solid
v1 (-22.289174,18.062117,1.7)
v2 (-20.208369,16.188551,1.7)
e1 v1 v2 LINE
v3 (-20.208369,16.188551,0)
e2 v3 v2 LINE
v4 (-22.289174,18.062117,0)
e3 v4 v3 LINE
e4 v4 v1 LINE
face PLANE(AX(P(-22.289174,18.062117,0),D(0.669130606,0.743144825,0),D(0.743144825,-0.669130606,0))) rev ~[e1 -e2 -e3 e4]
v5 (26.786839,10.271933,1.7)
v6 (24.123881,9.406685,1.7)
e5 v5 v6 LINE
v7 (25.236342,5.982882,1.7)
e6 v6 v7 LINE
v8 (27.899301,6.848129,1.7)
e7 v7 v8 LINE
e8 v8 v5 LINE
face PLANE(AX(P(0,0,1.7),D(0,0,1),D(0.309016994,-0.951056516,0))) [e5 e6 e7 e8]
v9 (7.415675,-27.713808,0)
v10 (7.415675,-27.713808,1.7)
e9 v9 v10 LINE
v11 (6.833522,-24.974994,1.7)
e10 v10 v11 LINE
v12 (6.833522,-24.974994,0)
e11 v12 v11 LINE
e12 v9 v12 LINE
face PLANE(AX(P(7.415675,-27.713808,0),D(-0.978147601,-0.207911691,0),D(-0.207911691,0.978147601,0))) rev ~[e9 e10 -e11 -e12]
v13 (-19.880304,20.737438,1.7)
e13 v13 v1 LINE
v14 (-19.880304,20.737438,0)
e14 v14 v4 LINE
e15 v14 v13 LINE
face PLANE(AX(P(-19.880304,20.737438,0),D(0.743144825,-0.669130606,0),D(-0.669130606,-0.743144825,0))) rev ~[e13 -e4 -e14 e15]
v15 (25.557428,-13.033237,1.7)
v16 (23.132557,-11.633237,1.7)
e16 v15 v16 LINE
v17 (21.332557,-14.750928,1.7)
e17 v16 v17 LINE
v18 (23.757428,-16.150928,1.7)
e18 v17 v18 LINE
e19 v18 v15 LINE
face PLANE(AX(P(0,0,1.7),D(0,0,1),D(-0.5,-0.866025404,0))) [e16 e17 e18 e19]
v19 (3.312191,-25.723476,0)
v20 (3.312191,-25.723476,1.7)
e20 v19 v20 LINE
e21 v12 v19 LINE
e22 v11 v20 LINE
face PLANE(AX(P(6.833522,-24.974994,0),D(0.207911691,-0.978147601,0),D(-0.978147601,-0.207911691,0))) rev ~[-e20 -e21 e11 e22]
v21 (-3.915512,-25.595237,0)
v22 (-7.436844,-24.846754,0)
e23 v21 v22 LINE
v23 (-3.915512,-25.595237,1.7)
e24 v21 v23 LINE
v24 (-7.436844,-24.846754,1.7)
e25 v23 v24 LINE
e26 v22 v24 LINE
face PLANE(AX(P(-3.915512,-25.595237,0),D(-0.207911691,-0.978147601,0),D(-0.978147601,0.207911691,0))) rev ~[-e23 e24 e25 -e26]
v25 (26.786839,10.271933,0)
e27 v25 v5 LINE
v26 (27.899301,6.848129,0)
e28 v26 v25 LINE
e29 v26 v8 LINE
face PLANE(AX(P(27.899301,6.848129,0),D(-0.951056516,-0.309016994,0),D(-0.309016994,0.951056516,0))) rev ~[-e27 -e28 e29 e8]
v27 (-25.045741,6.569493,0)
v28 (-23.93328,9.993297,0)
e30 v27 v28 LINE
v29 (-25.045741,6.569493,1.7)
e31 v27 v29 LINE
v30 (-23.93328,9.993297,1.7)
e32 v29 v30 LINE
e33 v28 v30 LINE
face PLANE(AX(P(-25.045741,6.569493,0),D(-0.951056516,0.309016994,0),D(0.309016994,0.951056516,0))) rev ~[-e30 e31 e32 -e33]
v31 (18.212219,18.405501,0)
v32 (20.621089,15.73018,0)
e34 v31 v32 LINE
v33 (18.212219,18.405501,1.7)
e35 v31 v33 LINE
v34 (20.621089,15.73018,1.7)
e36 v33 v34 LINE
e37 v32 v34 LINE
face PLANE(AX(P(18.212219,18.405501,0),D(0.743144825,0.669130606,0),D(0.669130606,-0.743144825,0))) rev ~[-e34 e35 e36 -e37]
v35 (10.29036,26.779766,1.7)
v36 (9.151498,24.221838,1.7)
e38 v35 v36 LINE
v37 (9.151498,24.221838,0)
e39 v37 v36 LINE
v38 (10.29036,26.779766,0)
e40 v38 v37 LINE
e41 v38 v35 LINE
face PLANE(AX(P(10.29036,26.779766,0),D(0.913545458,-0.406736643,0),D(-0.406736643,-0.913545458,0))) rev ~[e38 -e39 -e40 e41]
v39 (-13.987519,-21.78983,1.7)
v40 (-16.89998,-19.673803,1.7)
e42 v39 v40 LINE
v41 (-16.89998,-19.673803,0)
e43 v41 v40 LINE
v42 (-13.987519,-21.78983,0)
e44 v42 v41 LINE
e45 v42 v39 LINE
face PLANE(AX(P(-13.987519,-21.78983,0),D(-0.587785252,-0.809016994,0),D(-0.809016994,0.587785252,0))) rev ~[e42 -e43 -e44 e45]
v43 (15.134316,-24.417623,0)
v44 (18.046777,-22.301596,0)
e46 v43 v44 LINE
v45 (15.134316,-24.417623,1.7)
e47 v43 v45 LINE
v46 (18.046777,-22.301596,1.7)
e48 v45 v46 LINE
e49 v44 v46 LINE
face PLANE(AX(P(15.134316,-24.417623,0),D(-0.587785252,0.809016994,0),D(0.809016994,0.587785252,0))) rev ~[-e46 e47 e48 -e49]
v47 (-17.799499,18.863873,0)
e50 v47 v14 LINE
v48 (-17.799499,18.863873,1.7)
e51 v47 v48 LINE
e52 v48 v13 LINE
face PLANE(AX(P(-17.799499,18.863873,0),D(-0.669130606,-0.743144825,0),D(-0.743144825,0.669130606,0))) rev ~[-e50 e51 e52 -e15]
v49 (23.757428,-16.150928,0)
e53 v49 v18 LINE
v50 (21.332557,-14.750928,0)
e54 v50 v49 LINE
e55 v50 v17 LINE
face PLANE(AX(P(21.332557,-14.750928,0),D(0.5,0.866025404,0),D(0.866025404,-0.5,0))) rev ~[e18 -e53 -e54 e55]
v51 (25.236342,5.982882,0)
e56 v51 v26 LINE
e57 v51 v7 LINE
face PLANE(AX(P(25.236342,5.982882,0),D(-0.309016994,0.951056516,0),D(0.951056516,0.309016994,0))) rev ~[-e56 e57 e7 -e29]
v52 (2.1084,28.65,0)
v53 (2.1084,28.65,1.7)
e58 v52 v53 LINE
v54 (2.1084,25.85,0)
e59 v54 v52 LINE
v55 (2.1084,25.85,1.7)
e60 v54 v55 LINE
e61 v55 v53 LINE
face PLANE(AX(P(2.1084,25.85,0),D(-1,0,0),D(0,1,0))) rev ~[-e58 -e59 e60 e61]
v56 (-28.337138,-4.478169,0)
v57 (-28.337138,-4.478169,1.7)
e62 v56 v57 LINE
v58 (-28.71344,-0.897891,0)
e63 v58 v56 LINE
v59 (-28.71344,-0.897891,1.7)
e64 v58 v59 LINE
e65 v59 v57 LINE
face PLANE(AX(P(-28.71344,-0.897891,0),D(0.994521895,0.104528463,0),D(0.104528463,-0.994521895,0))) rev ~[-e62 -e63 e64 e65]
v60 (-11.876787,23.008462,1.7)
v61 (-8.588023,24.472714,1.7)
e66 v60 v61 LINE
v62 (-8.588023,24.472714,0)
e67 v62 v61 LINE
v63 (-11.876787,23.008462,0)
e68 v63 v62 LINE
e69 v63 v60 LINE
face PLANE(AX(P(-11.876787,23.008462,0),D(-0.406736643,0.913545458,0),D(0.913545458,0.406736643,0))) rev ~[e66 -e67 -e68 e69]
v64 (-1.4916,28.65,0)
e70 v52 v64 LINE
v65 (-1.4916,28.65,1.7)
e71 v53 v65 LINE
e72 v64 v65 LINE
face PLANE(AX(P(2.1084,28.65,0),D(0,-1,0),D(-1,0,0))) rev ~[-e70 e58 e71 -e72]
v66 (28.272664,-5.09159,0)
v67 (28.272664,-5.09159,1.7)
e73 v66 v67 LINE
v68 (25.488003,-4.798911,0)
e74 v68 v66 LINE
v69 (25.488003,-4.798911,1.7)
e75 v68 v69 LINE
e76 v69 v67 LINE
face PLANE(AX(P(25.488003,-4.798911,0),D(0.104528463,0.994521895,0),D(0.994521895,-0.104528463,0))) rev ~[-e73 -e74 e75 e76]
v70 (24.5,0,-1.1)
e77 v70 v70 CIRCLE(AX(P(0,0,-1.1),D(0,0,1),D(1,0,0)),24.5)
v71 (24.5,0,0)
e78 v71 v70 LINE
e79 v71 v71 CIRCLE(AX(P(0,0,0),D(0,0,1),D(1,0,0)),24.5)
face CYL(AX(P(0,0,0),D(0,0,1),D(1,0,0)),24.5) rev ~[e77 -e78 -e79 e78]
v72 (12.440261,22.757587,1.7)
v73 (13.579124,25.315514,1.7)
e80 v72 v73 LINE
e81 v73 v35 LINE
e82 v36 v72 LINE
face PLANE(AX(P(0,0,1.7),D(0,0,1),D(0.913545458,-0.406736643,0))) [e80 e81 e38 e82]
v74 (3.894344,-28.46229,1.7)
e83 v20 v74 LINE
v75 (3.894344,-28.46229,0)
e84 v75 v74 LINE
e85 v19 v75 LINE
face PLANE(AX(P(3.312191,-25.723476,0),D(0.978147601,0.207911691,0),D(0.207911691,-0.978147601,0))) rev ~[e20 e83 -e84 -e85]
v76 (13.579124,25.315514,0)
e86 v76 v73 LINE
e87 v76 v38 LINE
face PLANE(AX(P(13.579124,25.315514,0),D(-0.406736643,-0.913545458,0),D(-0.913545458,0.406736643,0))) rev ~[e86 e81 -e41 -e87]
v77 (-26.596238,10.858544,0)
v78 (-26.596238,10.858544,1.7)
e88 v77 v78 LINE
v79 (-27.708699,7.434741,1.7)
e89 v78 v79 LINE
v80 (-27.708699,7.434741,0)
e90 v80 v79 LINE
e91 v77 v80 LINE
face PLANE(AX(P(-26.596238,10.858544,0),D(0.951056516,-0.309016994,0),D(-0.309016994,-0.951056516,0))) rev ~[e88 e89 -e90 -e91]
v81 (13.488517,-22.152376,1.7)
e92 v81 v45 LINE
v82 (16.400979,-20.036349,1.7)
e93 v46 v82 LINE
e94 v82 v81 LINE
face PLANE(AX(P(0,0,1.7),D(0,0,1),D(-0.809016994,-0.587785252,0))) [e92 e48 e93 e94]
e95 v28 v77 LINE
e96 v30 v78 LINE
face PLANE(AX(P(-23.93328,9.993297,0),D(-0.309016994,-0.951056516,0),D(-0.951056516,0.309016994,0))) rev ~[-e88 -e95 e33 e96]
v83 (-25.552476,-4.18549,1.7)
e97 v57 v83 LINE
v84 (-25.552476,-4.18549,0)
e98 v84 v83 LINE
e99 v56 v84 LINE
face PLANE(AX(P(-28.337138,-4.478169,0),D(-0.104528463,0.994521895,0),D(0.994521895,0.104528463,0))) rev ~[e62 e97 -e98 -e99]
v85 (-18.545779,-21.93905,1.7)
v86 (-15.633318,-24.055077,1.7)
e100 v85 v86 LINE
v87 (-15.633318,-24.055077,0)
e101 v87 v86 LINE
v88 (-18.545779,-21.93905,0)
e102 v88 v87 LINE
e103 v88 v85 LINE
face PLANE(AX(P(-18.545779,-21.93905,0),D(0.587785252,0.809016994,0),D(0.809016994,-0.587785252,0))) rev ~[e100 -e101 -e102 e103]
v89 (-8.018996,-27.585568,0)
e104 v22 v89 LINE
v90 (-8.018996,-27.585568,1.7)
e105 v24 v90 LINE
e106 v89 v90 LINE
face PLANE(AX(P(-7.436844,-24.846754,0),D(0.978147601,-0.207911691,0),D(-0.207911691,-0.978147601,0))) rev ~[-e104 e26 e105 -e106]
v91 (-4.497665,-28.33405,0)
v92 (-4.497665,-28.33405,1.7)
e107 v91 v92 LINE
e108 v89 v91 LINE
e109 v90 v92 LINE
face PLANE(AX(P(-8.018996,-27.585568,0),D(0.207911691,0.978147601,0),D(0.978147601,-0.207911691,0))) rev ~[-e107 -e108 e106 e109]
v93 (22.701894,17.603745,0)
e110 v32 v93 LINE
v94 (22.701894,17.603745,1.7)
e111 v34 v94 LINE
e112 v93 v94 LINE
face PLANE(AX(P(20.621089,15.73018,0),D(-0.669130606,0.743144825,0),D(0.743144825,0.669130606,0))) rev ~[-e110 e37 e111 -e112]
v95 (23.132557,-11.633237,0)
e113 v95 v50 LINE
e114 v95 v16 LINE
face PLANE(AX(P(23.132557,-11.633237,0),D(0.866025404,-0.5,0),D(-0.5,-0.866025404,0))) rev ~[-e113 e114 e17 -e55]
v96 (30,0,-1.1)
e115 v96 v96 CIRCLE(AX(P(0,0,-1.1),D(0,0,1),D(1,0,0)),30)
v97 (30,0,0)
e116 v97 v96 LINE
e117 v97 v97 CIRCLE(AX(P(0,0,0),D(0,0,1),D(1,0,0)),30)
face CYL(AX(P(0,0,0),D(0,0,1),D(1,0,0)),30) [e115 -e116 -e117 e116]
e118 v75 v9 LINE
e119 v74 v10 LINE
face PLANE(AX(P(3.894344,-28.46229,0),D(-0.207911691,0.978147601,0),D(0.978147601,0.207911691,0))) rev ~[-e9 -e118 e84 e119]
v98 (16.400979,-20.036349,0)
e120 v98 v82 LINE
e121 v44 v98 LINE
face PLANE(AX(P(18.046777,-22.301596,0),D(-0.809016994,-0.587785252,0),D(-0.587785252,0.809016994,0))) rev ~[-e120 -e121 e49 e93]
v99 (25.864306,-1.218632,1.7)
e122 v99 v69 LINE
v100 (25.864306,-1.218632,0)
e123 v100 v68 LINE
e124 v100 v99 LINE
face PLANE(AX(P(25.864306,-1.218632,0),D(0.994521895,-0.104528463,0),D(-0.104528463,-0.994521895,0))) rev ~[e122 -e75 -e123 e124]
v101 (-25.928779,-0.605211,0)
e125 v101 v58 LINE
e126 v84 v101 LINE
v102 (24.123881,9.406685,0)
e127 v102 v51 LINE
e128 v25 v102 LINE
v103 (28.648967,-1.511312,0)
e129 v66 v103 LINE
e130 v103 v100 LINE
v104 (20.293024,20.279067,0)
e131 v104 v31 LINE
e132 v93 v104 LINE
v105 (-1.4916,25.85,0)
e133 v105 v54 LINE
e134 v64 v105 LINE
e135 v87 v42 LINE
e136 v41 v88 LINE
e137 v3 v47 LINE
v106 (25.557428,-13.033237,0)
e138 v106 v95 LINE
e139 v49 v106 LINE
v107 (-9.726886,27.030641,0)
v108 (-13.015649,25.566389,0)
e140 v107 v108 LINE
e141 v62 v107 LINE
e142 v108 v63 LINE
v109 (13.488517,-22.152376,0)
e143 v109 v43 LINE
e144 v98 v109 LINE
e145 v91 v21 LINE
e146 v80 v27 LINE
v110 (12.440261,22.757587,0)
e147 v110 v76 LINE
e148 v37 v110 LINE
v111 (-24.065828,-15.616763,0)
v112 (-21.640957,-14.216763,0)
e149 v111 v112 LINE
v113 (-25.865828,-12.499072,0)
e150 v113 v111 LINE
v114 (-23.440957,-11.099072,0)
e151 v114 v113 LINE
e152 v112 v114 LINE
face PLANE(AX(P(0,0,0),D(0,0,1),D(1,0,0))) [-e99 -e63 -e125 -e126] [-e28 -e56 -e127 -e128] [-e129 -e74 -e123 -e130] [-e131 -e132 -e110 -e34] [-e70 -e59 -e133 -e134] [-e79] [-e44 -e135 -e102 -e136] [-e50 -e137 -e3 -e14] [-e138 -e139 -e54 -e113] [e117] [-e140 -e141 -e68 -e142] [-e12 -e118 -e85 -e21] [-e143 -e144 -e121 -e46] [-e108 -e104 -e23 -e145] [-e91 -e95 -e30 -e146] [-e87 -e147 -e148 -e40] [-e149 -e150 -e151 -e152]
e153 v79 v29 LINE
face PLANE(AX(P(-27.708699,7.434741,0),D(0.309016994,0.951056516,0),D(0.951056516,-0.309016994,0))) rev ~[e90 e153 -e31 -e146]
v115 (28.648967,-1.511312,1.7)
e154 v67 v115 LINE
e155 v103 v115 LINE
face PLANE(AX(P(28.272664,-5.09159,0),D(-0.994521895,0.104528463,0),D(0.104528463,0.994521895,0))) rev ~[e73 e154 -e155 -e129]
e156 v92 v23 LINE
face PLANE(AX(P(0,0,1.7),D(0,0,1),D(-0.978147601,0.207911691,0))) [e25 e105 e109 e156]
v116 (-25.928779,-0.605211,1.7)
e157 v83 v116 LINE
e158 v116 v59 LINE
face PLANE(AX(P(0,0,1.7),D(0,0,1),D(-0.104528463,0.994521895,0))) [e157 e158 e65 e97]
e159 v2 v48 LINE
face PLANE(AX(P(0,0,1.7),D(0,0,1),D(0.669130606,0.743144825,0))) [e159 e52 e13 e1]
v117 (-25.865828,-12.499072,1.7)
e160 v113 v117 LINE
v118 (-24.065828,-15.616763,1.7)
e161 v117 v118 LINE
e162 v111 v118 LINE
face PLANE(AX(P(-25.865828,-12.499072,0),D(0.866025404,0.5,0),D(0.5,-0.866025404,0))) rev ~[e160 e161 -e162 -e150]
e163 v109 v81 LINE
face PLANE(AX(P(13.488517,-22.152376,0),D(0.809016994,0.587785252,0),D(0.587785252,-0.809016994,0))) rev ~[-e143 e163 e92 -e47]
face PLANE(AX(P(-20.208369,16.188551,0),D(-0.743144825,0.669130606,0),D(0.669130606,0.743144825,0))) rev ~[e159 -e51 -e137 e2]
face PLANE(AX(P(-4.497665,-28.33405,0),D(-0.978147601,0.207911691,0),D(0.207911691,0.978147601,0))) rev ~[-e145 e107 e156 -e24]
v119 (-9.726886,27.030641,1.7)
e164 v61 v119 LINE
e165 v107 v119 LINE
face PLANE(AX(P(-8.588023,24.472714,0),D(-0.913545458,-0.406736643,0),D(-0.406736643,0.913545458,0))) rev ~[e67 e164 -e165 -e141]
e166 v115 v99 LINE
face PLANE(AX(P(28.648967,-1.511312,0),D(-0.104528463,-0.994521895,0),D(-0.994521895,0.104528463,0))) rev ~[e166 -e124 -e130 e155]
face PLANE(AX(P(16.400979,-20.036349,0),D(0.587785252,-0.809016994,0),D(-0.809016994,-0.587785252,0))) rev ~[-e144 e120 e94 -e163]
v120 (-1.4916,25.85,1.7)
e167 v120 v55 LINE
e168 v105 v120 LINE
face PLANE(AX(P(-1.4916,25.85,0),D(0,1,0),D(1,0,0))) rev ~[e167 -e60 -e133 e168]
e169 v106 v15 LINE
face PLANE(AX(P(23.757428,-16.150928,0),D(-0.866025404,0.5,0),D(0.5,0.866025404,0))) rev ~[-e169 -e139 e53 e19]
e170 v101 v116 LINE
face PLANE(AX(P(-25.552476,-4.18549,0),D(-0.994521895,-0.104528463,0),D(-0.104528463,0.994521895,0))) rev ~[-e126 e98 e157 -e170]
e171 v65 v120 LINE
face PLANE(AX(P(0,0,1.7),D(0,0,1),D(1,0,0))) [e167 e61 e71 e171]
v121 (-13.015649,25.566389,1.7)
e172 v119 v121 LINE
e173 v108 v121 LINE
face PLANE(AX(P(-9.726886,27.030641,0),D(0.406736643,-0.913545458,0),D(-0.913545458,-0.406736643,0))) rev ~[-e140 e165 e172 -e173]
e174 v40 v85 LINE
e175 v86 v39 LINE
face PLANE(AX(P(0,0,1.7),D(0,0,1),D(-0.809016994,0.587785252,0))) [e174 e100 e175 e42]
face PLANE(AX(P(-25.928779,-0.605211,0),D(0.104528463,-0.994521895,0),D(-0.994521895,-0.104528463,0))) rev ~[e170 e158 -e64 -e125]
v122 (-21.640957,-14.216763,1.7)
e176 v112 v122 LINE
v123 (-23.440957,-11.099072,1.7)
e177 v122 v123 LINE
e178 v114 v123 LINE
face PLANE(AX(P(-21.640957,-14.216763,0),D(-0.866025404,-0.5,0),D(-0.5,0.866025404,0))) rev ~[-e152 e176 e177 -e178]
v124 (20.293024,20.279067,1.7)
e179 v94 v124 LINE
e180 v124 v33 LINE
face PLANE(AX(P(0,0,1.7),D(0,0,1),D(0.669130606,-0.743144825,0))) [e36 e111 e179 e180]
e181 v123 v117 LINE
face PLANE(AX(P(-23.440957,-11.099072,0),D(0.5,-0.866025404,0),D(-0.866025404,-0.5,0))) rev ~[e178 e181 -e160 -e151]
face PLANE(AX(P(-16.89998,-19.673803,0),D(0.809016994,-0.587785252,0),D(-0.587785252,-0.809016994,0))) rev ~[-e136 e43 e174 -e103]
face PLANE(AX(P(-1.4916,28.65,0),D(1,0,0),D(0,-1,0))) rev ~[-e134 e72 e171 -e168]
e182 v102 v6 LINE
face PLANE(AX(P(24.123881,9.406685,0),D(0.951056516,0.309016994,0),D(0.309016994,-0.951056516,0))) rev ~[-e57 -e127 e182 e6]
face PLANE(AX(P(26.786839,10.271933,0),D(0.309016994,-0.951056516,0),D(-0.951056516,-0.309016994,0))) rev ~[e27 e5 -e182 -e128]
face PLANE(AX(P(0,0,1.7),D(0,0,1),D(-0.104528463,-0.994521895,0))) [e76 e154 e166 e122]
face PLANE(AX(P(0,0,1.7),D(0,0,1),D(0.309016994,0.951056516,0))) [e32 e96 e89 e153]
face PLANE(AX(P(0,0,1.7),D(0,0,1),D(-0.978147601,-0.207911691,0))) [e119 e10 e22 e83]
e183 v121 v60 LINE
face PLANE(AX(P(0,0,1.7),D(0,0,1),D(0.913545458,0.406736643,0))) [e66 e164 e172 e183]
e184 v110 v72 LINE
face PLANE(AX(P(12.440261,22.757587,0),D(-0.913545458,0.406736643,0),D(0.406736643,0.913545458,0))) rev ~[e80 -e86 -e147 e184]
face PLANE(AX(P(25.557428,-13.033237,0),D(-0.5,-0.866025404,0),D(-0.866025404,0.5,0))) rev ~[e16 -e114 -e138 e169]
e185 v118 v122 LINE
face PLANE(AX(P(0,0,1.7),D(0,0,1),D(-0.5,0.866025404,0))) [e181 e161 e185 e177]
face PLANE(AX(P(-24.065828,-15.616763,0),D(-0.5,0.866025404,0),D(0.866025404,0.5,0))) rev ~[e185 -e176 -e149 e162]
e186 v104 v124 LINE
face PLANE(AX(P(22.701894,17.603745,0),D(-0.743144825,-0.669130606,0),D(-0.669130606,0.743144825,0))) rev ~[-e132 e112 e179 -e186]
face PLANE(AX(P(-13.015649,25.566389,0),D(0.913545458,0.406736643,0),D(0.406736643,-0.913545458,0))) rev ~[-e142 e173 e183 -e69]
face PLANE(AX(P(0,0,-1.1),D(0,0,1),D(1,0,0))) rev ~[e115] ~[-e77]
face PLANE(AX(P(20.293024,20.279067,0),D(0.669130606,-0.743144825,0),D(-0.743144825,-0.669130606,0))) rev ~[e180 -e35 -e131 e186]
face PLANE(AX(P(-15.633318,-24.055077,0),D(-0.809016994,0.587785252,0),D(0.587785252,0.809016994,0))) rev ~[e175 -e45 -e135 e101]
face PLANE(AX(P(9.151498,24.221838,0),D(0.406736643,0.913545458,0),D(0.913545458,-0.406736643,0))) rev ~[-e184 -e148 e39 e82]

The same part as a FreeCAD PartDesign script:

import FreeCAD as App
import Part
import Sketcher

V = App.Vector


def add_polygon(sketch, points):
    """Adds a closed chain of lines whose ends are joined by coincident constraints."""
    first, n = sketch.GeometryCount, len(points)
    for a, b in zip(points, points[1:] + points[:1]):
        sketch.addGeometry(Part.LineSegment(App.Vector(*a, 0), App.Vector(*b, 0)), False)
    for i in range(n):
        sketch.addConstraint(Sketcher.Constraint("Coincident", first + i, 2, first + (i + 1) % n, 1))

doc = App.newDocument("Part")
body = doc.addObject("PartDesign::Body", "Body")

# Sketch on XY plane
sketch1 = body.newObject("Sketcher::SketchObject", "Sketch")
sketch1.AttachmentSupport = (doc.getObject("XY_Plane"), [""])
sketch1.MapMode = "FlatFace"
sketch1.addGeometry(Part.Circle(V(0, 0, 0), V(0, 0, 1), 30), False)
sketch1.addGeometry(Part.Circle(V(0, 0, 0), V(0, 0, 1), 24), False)
sketch1.addConstraint(Sketcher.Constraint("Coincident", 0, 3, -1, 1))
sketch1.addConstraint(Sketcher.Constraint("Coincident", 1, 3, -1, 1))
sketch1.addConstraint(Sketcher.Constraint("Diameter", 0, 60.0))
sketch1.addConstraint(Sketcher.Constraint("Diameter", 1, 49.0))
pad1 = body.newObject("PartDesign::Pad", "Pad")
pad1.Profile = sketch1
pad1.Length = 1.1
pad1.Reversed = True

# Sketch on XY plane
sketch2 = body.newObject("Sketcher::SketchObject", "Sketch001")
sketch2.AttachmentSupport = (doc.getObject("XY_Plane"), [""])
sketch2.MapMode = "FlatFace"
add_polygon(sketch2, [(-1.5, 28.6), (-1.5, 25.9), (2.1, 25.9), (2.1, 28.6)])  # lines 0-3
sketch2.addConstraint(Sketcher.Constraint("Vertical", 0))
sketch2.addConstraint(Sketcher.Constraint("Horizontal", 1))
sketch2.addConstraint(Sketcher.Constraint("Vertical", 2))
sketch2.addConstraint(Sketcher.Constraint("Horizontal", 3))
sketch2.addConstraint(Sketcher.Constraint("DistanceX", 1, 1, 1, 2, 3.6))
sketch2.addConstraint(Sketcher.Constraint("DistanceY", 0, 2, 0, 1, 2.8))
sketch2.addConstraint(Sketcher.Constraint("DistanceY", -1, 1, 0, 2, 25.85))
sketch2.addConstraint(Sketcher.Constraint("DistanceX", 0, 2, -1, 1, 1.4916))
pad2 = body.newObject("PartDesign::Pad", "Pad001")
pad2.Profile = sketch2
pad2.Length = 1.7
doc.recompute()

polarpattern = body.newObject("PartDesign::PolarPattern", "PolarPattern")
polarpattern.Originals = [pad2]
polarpattern.Axis = (doc.getObject("Z_Axis"), [""])
polarpattern.Angle = 360
polarpattern.Occurrences = 15
body.Tip = polarpattern

doc.recompute()
